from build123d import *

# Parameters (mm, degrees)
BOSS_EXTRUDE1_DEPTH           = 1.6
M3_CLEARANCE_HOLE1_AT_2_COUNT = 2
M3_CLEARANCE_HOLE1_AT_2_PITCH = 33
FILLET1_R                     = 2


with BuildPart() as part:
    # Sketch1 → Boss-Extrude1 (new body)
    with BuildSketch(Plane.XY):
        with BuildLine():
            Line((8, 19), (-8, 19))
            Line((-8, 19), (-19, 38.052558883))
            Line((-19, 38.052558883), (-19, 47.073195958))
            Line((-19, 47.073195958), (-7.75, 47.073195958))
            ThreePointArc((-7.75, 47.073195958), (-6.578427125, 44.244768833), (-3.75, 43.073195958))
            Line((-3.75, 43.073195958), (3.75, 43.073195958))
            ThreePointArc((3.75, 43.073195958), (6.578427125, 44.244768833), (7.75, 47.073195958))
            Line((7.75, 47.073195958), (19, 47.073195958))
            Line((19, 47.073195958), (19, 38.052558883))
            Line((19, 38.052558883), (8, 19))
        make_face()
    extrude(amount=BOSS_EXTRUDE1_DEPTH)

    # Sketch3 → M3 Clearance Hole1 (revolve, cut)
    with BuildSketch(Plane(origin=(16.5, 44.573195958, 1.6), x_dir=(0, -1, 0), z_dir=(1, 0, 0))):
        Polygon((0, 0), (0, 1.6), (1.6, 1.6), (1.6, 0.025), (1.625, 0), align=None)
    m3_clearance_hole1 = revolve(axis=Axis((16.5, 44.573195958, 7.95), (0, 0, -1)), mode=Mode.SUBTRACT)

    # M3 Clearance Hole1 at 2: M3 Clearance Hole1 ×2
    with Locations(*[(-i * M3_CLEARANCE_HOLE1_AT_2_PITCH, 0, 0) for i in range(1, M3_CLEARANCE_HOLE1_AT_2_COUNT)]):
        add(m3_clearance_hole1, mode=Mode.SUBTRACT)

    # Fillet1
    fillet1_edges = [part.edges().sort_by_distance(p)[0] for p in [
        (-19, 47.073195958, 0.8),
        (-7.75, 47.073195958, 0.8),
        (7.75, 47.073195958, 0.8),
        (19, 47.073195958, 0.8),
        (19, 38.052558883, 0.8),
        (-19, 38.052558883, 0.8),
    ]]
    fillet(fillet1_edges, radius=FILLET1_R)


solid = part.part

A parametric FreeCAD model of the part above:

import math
import FreeCAD as App
import Part
import Sketcher

V = App.Vector
Q = App.Units.Quantity


def edges_at(feature, points):
    """Names of the edges that pass closest to the given points."""
    edges = feature.Shape.Edges
    near = lambda p: min(range(len(edges)), key=lambda i: edges[i].distToShape(Part.Vertex(*p))[0])
    return sorted({f"Edge{near(p) + 1}" for p in points})

doc = App.newDocument("Part")
body = doc.addObject("PartDesign::Body", "Body")

sketch1 = body.newObject("Sketcher::SketchObject", "Sketch")
sketch1.AttachmentSupport = (doc.getObject("XY_Plane"), [""])
sketch1.MapMode = "FlatFace"
sketch1.addGeometry([
    Part.LineSegment(V(-8, 19, 0), V(8, 19, 0)),
    Part.LineSegment(V(8, 19, 0), V(19, 38.1, 0)),
    Part.LineSegment(V(19, 38.1, 0), V(19, 47.1, 0)),
    Part.LineSegment(V(19, 47.1, 0), V(7.8, 47.1, 0)),
    Part.ArcOfCircle(Part.Circle(V(3.8, 47.1, 0), V(0, 0, 1), 4), math.radians(-90), math.radians(0)),
    Part.LineSegment(V(3.8, 43.1, 0), V(-3.8, 43.1, 0)),
    Part.ArcOfCircle(Part.Circle(V(-3.8, 47.1, 0), V(0, 0, 1), 4), math.radians(180), math.radians(270)),
    Part.LineSegment(V(-7.8, 47.1, 0), V(-19, 47.1, 0)),
    Part.LineSegment(V(-19, 47.1, 0), V(-19, 38.1, 0)),
    Part.LineSegment(V(-19, 38.1, 0), V(-8, 19, 0)),
], False)
sketch1.addConstraint([
    Sketcher.Constraint("Coincident", 0, 2, 1, 1),
    Sketcher.Constraint("Coincident", 1, 2, 2, 1),
    Sketcher.Constraint("Coincident", 2, 2, 3, 1),
    Sketcher.Constraint("Coincident", 3, 2, 4, 2),
    Sketcher.Constraint("Tangent", 4, 1, 5, 1),
    Sketcher.Constraint("Tangent", 5, 2, 6, 2),
    Sketcher.Constraint("Coincident", 6, 1, 7, 1),
    Sketcher.Constraint("Coincident", 7, 2, 8, 1),
    Sketcher.Constraint("Coincident", 8, 2, 9, 1),
    Sketcher.Constraint("Coincident", 9, 2, 0, 1),
    Sketcher.Constraint("Horizontal", 0),
    Sketcher.Constraint("Vertical", 2),
    Sketcher.Constraint("Horizontal", 3),
    Sketcher.Constraint("Horizontal", 5),
    Sketcher.Constraint("Horizontal", 7),
    Sketcher.Constraint("Vertical", 8),
    Sketcher.Constraint("Equal", 4, 6),
    Sketcher.Constraint("Symmetric", 3, 2, 6, 1, -2),
    Sketcher.Constraint("Symmetric", 1, 2, 8, 2, -2),
    Sketcher.Constraint("Horizontal", 6, 3, 2, 2),
    Sketcher.Constraint("Equal", 1, 9),
    Sketcher.Constraint("Radius", 4, 4.0),
    Sketcher.Constraint("DistanceX", 0, 1, 0, 2, 16.0),
    Sketcher.Constraint("Angle", 1, Q("60 deg")),
    Sketcher.Constraint("Distance", 1, 22.0),
    Sketcher.Constraint("DistanceX", 5, 2, 5, 1, 7.5),
    Sketcher.Constraint("DistanceY", -1, 1, 0, 2, 19.0),
    Sketcher.Constraint("DistanceY", 2, 1, 2, 2, 9.020637),
])
pad1 = body.newObject("PartDesign::Pad", "Pad")
pad1.Profile = sketch1
pad1.Length = 1.6

sketch2 = body.newObject("Sketcher::SketchObject", "Sketch001")
sketch2.AttachmentSupport = (doc.getObject("YZ_Plane"), [""])
sketch2.MapMode = "FlatFace"
sketch2.AttachmentOffset = App.Placement(V(0, 0, 16.5), App.Rotation())
sketch2.addGeometry([
    Part.LineSegment(V(44.573, 0, 0), V(44.573, 1.6, 0)),
    Part.LineSegment(V(44.573, 1.6, 0), V(42.948, 1.6, 0)),
    Part.LineSegment(V(42.948, 1.6, 0), V(42.973, 1.575, 0)),
    Part.LineSegment(V(42.973, 1.575, 0), V(42.973, 0, 0)),
    Part.LineSegment(V(42.973, 0, 0), V(44.573, 0, 0)),
], False)
sketch2.addGeometry(Part.LineSegment(V(44.573, 1.6, 0), V(44.573, 0, 0)), True)
sketch2.addConstraint([
    Sketcher.Constraint("Coincident", 0, 2, 1, 1),
    Sketcher.Constraint("Coincident", 1, 2, 2, 1),
    Sketcher.Constraint("Coincident", 2, 2, 3, 1),
    Sketcher.Constraint("Coincident", 3, 2, 4, 1),
    Sketcher.Constraint("Coincident", 4, 2, 0, 1),
    Sketcher.Constraint("Vertical", 0),
    Sketcher.Constraint("Horizontal", 1),
    Sketcher.Constraint("Vertical", 3),
    Sketcher.Constraint("Horizontal", 4),
    Sketcher.Constraint("Vertical", 5),
    Sketcher.Constraint("Coincident", 5, 1, 0, 2),
    Sketcher.Constraint("PointOnObject", 3, 2, -1),
    Sketcher.Constraint("PointOnObject", 5, 2, -1),
    Sketcher.Constraint("Equal", 4, 0),
    Sketcher.Constraint("Angle", 2, Q("-45 deg")),
    Sketcher.Constraint("DistanceX", 4, 1, 4, 2, 1.6),
    Sketcher.Constraint("DistanceX", 1, 2, 1, 1, 1.625),
    Sketcher.Constraint("DistanceX", -1, 1, 0, 2, 44.573196),
])
groove = body.newObject("PartDesign::Groove", "Groove")
groove.Profile = sketch2
groove.ReferenceAxis = (sketch2, ["Axis0"])
groove.Angle = 360
doc.recompute()

linearpattern = body.newObject("PartDesign::LinearPattern", "LinearPattern")
linearpattern.Originals = [groove]
linearpattern.Direction = (doc.getObject("X_Axis"), [""])
linearpattern.Mode = "offset"
linearpattern.Offset = 33
linearpattern.Occurrences = 2
linearpattern.Reversed = True
body.Tip = linearpattern
doc.recompute()

fillet = body.newObject("PartDesign::Fillet", "Fillet")
fillet.Base = (linearpattern, edges_at(linearpattern, [
    (-19, 47.073, 0.8),
    (-7.75, 47.073, 0.8),
    (7.75, 47.073, 0.8),
    (19, 47.073, 0.8),
    (19, 38.053, 0.8),
    (-19, 38.053, 0.8),
]))
fillet.Radius = 2

doc.recompute()
